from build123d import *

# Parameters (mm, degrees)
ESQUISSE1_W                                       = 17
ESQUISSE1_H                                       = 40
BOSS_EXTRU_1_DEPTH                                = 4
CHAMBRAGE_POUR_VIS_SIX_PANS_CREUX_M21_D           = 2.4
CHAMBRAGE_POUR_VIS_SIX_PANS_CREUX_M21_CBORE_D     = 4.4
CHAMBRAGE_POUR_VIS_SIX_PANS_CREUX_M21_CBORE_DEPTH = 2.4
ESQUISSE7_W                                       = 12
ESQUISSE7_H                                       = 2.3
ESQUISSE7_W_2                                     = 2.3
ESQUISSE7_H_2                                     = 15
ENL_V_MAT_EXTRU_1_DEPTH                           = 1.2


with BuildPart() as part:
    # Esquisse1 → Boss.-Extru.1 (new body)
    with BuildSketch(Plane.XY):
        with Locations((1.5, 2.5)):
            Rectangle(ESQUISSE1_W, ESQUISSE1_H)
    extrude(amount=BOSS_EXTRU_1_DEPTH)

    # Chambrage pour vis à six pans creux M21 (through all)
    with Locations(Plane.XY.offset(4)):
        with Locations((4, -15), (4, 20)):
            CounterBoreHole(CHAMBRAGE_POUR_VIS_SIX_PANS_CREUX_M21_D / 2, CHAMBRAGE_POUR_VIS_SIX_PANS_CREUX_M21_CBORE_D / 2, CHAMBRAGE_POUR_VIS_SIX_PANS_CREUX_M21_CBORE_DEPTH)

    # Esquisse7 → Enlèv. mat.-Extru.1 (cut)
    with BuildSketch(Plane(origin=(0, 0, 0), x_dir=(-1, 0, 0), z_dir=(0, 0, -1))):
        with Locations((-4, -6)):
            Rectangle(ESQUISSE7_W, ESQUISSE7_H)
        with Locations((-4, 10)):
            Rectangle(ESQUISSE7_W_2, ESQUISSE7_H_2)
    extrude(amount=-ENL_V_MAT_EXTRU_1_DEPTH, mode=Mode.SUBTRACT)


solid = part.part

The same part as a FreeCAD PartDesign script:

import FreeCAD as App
import Part
import Sketcher


def add_polygon(sketch, points):
    """Adds a closed chain of lines whose ends are joined by coincident constraints."""
    first, n = sketch.GeometryCount, len(points)
    for a, b in zip(points, points[1:] + points[:1]):
        sketch.addGeometry(Part.LineSegment(App.Vector(*a, 0), App.Vector(*b, 0)), False)
    for i in range(n):
        sketch.addConstraint(Sketcher.Constraint("Coincident", first + i, 2, first + (i + 1) % n, 1))

doc = App.newDocument("Part")
body = doc.addObject("PartDesign::Body", "Body")

# Sketch on XY plane
sketch1 = doc.addObject("Sketcher::SketchObject", "Sketch")
body.addObject(sketch1)
sketch1.AttachmentSupport = (doc.XY_Plane, [""])
sketch1.MapMode = "FlatFace"
add_polygon(sketch1, [(-7, 22), (-7, -18), (10, -18), (10, 22)])  # lines 0-3
sketch1.addConstraint([
    Sketcher.Constraint("Vertical", 0),
    Sketcher.Constraint("Horizontal", 1),
    Sketcher.Constraint("Vertical", 2),
    Sketcher.Constraint("Horizontal", 3),
    Sketcher.Constraint("DistanceX", 1, 1, 1, 2, 17.0),
    Sketcher.Constraint("DistanceY", 0, 2, 0, 1, 40.0),
    Sketcher.Constraint("DistanceX", 0, 2, -1, 1, 7.0),
    Sketcher.Constraint("DistanceY", 0, 2, -1, 1, 17.5),
])
pad1 = doc.addObject("PartDesign::Pad", "Pad")
body.addObject(pad1)
pad1.Profile = sketch1
pad1.Length = 4

# Sketch on XY plane
sketch2 = doc.addObject("Sketcher::SketchObject", "Sketch001")
body.addObject(sketch2)
sketch2.AttachmentSupport = (doc.XY_Plane, [""])
sketch2.MapMode = "FlatFace"
sketch2.AttachmentOffset = App.Placement(App.Vector(0, 0, 4), App.Rotation())
sketch2.addGeometry([
    Part.Circle(App.Vector(4, -15, 0), App.Vector(0, 0, 1), 1.2),
    Part.Circle(App.Vector(4, 20, 0), App.Vector(0, 0, 1), 1.2),
], False)
sketch2.addConstraint([
    Sketcher.Constraint("Equal", 0, 1),
    Sketcher.Constraint("Vertical", 0, 3, 1, 3),
    Sketcher.Constraint("Diameter", 0, 2.4),
    Sketcher.Constraint("DistanceX", -1, 1, 0, 3, 4.0),
    Sketcher.Constraint("DistanceY", 0, 3, -1, 1, 15.0),
    Sketcher.Constraint("DistanceY", -1, 1, 1, 3, 20.0),
])
doc.recompute()
hole = doc.addObject("PartDesign::Hole", "Hole")
body.addObject(hole)
hole.Profile = sketch2
hole.ThreadType = "None"
hole.Diameter = 2.4
hole.DepthType = "ThroughAll"
hole.HoleCutType = "Counterbore"
hole.HoleCutDiameter = 4.4
hole.HoleCutDepth = 2.4

# Sketch on XY plane
sketch3 = doc.addObject("Sketcher::SketchObject", "Sketch002")
body.addObject(sketch3)
sketch3.AttachmentSupport = (doc.XY_Plane, [""])
sketch3.MapMode = "FlatFace"
add_polygon(sketch3, [(10, -4.8), (10, -7.2), (-2, -7.2), (-2, -4.8)])  # lines 0-3
add_polygon(sketch3, [(5.2, 17.5), (5.2, 2.5), (2.9, 2.5), (2.9, 17.5)])  # lines 4-7
sketch3.addConstraint([
    Sketcher.Constraint("Vertical", 0),
    Sketcher.Constraint("Horizontal", 1),
    Sketcher.Constraint("Vertical", 2),
    Sketcher.Constraint("Horizontal", 3),
    Sketcher.Constraint("Vertical", 4),
    Sketcher.Constraint("Horizontal", 5),
    Sketcher.Constraint("Vertical", 6),
    Sketcher.Constraint("Horizontal", 7),
    Sketcher.Constraint("Equal", 7, 0),
    Sketcher.Constraint("DistanceX", 1, 2, 1, 1, 12.0),
    Sketcher.Constraint("DistanceY", 4, 2, 4, 1, 15.0),
    Sketcher.Constraint("DistanceX", 5, 2, 5, 1, 2.3),
    Sketcher.Constraint("DistanceX", -1, 1, 0, 2, 10.0),
    Sketcher.Constraint("DistanceY", -1, 1, 4, 2, 2.5),
    Sketcher.Constraint("DistanceY", 0, 2, -1, 1, 7.15),
    Sketcher.Constraint("DistanceX", -1, 1, 4, 2, 5.15),
])
pocket1 = doc.addObject("PartDesign::Pocket", "Pocket")
body.addObject(pocket1)
pocket1.Profile = sketch3
pocket1.Length = 1.2
pocket1.Reversed = True

doc.recompute()
